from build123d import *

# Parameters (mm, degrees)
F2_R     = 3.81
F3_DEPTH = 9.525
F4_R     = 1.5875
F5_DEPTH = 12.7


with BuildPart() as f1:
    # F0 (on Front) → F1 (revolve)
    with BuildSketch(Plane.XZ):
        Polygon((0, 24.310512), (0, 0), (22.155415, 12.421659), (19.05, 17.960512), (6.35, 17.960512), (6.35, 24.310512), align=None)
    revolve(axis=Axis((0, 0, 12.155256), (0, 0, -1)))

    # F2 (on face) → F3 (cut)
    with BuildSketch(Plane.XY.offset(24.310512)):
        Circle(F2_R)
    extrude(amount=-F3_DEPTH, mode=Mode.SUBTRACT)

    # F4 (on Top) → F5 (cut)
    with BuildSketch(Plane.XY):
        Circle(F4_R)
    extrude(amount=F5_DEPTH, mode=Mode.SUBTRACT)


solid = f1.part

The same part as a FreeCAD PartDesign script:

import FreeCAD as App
import Part
import Sketcher
from FreeCAD import Vector
Q = App.Units.Quantity


def add_polygon(sketch, points):
    """Adds a closed chain of lines whose ends are joined by coincident constraints."""
    first, n = sketch.GeometryCount, len(points)
    for a, b in zip(points, points[1:] + points[:1]):
        sketch.addGeometry(Part.LineSegment(App.Vector(*a, 0), App.Vector(*b, 0)), False)
    for i in range(n):
        sketch.addConstraint(Sketcher.Constraint("Coincident", first + i, 2, first + (i + 1) % n, 1))

doc = App.newDocument("Part")
params = doc.addObject("Spreadsheet::Sheet", "Params")
for row, (alias, value) in enumerate([
    ("sketch1_length", "1 in"),
    ("sketch1_width", "0.5 in"),
    ("sketch1_width2", "0.25 in"),
    ("sketch1_length2", "0.25 in"),
    ("revolution_angle", "360 deg"),
    ("sketch2_diameter", "0.3 in"),
    ("pocket1_length", "0.375 in"),
    ("sketch3_diameter", "0.125 in"),
    ("pocket2_length", "0.5 in"),
], start=1):
    params.set(f"A{row}", alias)
    params.set(f"B{row}", "=" + value)
    params.setAlias(f"B{row}", alias)

body = doc.addObject("PartDesign::Body", "Body")

# Sketch on XZ plane
sketch1 = body.newObject("Sketcher::SketchObject", "Sketch")
sketch1.AttachmentSupport = (doc.getObject("XZ_Plane"), [""])
sketch1.MapMode = "FlatFace"
add_polygon(sketch1, [(0, 24), (0, 0), (22, 12), (19, 18), (6, 18), (6, 24)])  # lines 0-5
sketch1.addConstraint([
    Sketcher.Constraint("Vertical", 0),
    Sketcher.Constraint("Horizontal", 3),
    Sketcher.Constraint("Vertical", 4),
    Sketcher.Constraint("Horizontal", 5),
    Sketcher.Constraint("Coincident", 0, 2, -1, 1),
    Sketcher.Constraint("Perpendicular", 1, 2),
    Sketcher.Constraint("Equal", 5, 4),
    Sketcher.Constraint("Distance", 1, Q("1 in")),
    Sketcher.Constraint("DistanceX", 3, 2, 3, 1, Q("0.5 in")),
    Sketcher.Constraint("DistanceX", 5, 2, 5, 1, Q("0.25 in")),
    Sketcher.Constraint("Distance", 2, Q("0.25 in")),
])
sketch1.setExpression("Constraints[13]", "Params.sketch1_length")
sketch1.setExpression("Constraints[14]", "Params.sketch1_width")
sketch1.setExpression("Constraints[15]", "Params.sketch1_width2")
sketch1.setExpression("Constraints[16]", "Params.sketch1_length2")
revolution = body.newObject("PartDesign::Revolution", "Revolution")
revolution.Profile = sketch1
revolution.ReferenceAxis = (sketch1, ["V_Axis"])
revolution.setExpression("Angle", "Params.revolution_angle")

# Sketch on XY plane
sketch2 = body.newObject("Sketcher::SketchObject", "Sketch001")
sketch2.AttachmentSupport = (doc.getObject("XY_Plane"), [""])
sketch2.MapMode = "FlatFace"
sketch2.AttachmentOffset = App.Placement(Vector(0, 0, 24.310512), App.Rotation())
sketch2.addGeometry(Part.Circle(Vector(0, 0, 0), Vector(0, 0, 1), 3.8), False)
sketch2.addConstraint([
    Sketcher.Constraint("Coincident", 0, 3, -1, 1),
    Sketcher.Constraint("Diameter", 0, Q("0.3 in")),
])
sketch2.setExpression("Constraints[1]", "Params.sketch2_diameter")
pocket1 = body.newObject("PartDesign::Pocket", "Pocket")
pocket1.Profile = sketch2
pocket1.setExpression("Length", "Params.pocket1_length")

# Sketch on XY plane
sketch3 = body.newObject("Sketcher::SketchObject", "Sketch002")
sketch3.AttachmentSupport = (doc.getObject("XY_Plane"), [""])
sketch3.MapMode = "FlatFace"
sketch3.addGeometry(Part.Circle(Vector(0, 0, 0), Vector(0, 0, 1), 1.6), False)
sketch3.addConstraint([
    Sketcher.Constraint("Coincident", 0, 3, -1, 1),
    Sketcher.Constraint("Diameter", 0, Q("0.125 in")),
])
sketch3.setExpression("Constraints[1]", "Params.sketch3_diameter")
pocket2 = body.newObject("PartDesign::Pocket", "Pocket001")
pocket2.Profile = sketch3
pocket2.setExpression("Length", "Params.pocket2_length")
pocket2.Reversed = True

doc.recompute()
